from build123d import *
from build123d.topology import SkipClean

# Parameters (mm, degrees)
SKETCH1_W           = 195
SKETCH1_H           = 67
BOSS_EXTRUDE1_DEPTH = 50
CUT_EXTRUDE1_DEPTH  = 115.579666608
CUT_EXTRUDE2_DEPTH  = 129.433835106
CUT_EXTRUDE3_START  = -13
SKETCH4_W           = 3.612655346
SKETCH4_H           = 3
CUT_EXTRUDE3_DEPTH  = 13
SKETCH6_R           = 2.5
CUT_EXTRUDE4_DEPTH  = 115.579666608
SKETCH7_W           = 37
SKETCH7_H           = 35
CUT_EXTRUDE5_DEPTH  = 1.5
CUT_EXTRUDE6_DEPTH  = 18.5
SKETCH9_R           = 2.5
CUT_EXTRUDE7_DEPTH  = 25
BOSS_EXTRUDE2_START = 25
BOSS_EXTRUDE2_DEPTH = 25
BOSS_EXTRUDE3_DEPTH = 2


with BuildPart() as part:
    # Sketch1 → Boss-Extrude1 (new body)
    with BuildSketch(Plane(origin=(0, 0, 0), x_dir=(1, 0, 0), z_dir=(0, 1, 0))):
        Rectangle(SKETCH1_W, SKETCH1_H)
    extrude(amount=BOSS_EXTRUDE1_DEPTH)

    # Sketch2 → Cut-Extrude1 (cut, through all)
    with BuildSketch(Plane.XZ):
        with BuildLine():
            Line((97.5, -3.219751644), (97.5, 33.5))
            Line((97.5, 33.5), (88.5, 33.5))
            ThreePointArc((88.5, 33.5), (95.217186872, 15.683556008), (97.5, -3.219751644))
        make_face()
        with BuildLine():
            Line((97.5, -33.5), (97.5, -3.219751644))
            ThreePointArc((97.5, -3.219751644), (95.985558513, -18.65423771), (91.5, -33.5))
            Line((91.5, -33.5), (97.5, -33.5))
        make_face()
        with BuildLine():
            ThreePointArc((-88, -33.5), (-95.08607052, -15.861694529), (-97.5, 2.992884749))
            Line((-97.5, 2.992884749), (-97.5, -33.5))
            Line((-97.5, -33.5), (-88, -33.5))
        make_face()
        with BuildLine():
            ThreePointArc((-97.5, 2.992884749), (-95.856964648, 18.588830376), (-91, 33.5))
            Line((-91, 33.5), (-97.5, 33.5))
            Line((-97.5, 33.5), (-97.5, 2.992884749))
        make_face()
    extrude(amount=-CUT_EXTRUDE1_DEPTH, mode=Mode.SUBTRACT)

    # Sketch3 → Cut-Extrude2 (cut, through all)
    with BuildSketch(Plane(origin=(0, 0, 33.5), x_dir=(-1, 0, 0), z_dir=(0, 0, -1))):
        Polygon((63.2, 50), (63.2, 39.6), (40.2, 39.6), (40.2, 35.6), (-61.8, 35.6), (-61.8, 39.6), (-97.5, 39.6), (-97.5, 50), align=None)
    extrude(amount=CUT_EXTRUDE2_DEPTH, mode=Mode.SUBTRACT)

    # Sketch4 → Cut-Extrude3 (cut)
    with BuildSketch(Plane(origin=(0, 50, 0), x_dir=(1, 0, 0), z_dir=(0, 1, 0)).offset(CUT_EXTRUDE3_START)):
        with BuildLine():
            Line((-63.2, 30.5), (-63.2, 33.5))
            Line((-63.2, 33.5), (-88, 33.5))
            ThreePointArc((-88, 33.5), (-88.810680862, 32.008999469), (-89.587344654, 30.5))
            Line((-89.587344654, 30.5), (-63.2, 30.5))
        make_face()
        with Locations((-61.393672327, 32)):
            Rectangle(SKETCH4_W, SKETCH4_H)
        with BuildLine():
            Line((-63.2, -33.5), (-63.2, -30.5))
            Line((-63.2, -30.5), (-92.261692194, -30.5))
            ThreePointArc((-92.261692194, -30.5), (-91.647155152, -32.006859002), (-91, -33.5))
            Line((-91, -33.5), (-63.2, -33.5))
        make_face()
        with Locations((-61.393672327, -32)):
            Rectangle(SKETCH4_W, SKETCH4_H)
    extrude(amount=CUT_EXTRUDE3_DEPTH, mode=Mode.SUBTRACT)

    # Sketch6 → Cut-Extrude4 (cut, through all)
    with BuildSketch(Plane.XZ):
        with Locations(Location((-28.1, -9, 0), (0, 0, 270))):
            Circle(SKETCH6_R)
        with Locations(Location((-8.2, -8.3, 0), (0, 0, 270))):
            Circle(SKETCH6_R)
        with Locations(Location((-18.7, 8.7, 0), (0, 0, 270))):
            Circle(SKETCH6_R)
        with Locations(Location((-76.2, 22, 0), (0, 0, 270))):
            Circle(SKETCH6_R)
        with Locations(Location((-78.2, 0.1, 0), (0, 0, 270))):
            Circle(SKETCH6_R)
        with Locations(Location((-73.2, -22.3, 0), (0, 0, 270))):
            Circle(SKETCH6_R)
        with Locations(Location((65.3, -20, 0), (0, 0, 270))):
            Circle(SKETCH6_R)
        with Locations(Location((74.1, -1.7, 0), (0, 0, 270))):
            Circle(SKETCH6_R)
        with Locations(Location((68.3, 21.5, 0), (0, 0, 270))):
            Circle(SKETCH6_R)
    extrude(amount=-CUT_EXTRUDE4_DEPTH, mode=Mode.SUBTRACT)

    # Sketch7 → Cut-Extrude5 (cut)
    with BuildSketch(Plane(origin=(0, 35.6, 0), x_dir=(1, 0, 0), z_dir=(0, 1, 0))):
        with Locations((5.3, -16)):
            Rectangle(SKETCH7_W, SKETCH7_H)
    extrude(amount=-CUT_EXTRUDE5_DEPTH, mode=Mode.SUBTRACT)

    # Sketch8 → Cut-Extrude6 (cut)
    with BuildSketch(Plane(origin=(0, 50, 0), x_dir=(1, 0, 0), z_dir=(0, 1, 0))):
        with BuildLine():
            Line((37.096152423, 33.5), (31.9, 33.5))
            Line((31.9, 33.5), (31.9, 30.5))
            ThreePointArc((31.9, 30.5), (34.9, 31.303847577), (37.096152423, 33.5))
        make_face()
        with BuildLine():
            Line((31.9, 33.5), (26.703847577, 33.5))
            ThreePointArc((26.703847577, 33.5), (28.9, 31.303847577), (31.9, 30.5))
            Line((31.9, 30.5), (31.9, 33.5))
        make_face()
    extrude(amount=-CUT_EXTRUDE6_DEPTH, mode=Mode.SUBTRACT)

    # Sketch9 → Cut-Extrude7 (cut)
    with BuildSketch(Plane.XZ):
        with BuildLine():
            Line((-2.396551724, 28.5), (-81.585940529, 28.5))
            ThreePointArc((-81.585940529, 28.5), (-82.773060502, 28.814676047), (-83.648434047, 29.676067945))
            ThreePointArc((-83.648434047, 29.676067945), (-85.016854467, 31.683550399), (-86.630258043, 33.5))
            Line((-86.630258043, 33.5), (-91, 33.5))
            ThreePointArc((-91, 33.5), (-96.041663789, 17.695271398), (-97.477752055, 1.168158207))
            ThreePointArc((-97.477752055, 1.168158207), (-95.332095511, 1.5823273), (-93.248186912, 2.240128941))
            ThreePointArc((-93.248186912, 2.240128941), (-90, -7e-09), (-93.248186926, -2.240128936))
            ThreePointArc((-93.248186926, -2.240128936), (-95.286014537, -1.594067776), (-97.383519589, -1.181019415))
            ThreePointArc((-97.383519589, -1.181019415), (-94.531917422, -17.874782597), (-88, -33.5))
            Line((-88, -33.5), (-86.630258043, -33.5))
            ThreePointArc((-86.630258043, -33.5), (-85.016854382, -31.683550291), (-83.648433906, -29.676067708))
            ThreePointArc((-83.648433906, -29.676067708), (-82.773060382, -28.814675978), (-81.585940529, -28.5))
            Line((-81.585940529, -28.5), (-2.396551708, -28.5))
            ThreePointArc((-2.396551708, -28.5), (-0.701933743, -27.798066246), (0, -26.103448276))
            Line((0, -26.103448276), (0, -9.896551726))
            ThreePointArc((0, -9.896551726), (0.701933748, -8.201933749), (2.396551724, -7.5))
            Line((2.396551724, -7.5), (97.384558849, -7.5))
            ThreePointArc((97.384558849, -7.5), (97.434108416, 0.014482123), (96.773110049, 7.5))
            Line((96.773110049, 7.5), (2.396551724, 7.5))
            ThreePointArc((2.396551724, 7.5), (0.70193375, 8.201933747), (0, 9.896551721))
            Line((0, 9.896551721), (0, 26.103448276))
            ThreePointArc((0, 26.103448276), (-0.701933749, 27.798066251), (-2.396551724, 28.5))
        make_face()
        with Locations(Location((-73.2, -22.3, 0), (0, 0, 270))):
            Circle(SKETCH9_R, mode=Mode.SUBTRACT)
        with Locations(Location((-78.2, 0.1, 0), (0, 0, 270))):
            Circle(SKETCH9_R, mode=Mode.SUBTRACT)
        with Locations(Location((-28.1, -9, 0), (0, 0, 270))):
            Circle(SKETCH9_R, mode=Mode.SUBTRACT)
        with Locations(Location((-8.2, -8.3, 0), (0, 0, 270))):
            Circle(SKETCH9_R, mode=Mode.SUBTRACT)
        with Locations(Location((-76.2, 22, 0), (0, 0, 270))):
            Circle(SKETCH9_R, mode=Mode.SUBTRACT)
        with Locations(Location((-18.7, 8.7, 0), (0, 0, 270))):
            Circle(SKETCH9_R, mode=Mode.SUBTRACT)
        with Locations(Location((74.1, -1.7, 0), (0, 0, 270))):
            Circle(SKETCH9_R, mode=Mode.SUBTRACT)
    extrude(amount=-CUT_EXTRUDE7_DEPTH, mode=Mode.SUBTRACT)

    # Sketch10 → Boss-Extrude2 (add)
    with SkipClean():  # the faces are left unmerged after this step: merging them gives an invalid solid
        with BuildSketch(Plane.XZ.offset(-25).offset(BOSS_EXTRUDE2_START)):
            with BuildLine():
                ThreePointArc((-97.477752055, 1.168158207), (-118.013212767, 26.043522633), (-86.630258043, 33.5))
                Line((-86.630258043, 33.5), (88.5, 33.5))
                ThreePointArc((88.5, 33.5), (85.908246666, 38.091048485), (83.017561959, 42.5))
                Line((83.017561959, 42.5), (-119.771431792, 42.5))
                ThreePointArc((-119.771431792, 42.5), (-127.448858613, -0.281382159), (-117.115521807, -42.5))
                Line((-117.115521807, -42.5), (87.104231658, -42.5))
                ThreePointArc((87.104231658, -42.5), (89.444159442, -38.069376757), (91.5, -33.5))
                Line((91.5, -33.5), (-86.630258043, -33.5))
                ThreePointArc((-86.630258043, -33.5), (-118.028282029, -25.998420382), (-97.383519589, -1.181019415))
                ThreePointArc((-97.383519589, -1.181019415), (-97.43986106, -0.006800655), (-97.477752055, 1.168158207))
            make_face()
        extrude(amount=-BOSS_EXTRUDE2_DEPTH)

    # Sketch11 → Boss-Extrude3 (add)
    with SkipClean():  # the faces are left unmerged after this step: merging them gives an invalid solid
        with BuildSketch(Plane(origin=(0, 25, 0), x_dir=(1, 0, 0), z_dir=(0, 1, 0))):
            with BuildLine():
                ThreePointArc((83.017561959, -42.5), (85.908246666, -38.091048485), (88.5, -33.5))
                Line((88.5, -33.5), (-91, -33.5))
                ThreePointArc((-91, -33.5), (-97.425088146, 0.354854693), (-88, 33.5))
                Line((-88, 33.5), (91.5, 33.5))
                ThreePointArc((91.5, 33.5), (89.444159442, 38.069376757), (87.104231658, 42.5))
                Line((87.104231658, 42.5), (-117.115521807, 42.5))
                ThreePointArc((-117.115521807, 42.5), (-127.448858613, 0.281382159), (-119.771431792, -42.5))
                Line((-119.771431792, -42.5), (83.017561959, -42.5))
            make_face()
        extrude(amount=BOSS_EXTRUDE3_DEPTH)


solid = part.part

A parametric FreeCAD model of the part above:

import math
import FreeCAD as App
import Part
import Sketcher
Q = App.Units.Quantity

doc = App.newDocument("Part")
params = doc.addObject("Spreadsheet::Sheet", "Params")
for row, (alias, value) in enumerate([
    ("sketch1_width", "195 mm"),
    ("sketch1_height", "67 mm"),
    ("pad1_length", "50 mm"),
    ("sketch2_width", "9 mm"),
    ("sketch2_width2", "6 mm"),
    ("sketch2_width3", "9.5 mm"),
    ("sketch2_width4", "6.5 mm"),
    ("sketch3_width", "102 mm"),
    ("sketch3_width2", "23 mm"),
    ("sketch3_height", "4 mm"),
    ("sketch3_width3", "160.7 mm"),
    ("sketch3_height2", "10.4 mm"),
    ("sketch4_width", "30 mm"),
    ("sketch4_height", "3 mm"),
    ("pocket3_length", "13 mm"),
    ("sketch5_diameter", "5 mm"),
    ("sketch6_width", "37 mm"),
    ("sketch6_height", "35 mm"),
    ("pocket5_length", "1.5 mm"),
    ("sketch7_radius", "6 mm"),
    ("pocket6_length", "18.5 mm"),
    ("sketch8_diameter", "5 mm"),
    ("sketch8_radius", "19 mm"),
    ("pocket7_length", "25 mm"),
    ("sketch9_radius", "19 mm"),
    ("pad2_length", "25 mm"),
    ("sketch10_width", "179.5 mm"),
    ("pad3_length", "2 mm"),
], start=1):
    params.set(f"A{row}", alias)
    params.set(f"B{row}", "=" + value)
    params.setAlias(f"B{row}", alias)

body = doc.addObject("PartDesign::Body", "Body")

sketch1 = body.newObject("Sketcher::SketchObject", "Sketch")
sketch1.AttachmentSupport = (doc.getObject("XZ_Plane"), [""])
sketch1.MapMode = "FlatFace"
sketch1.addGeometry(Part.LineSegment(App.Vector(-98, -34, 0), App.Vector(-98, 34, 0)), False)
sketch1.addGeometry(Part.LineSegment(App.Vector(-98, 34, 0), App.Vector(98, 34, 0)), False)
sketch1.addGeometry(Part.LineSegment(App.Vector(98, 34, 0), App.Vector(98, -34, 0)), False)
sketch1.addGeometry(Part.LineSegment(App.Vector(98, -34, 0), App.Vector(-98, -34, 0)), False)
sketch1.addConstraint(Sketcher.Constraint("Coincident", 0, 2, 1, 1))
sketch1.addConstraint(Sketcher.Constraint("Coincident", 1, 2, 2, 1))
sketch1.addConstraint(Sketcher.Constraint("Coincident", 2, 2, 3, 1))
sketch1.addConstraint(Sketcher.Constraint("Coincident", 3, 2, 0, 1))
sketch1.addConstraint(Sketcher.Constraint("Vertical", 0))
sketch1.addConstraint(Sketcher.Constraint("Horizontal", 1))
sketch1.addConstraint(Sketcher.Constraint("Vertical", 2))
sketch1.addConstraint(Sketcher.Constraint("Horizontal", 3))
sketch1.addConstraint(Sketcher.Constraint("Symmetric", 0, 2, 2, 2, -1, 1))
sketch1.addConstraint(Sketcher.Constraint("DistanceX", 1, 1, 1, 2, Q("195 mm")))
sketch1.addConstraint(Sketcher.Constraint("DistanceY", 0, 1, 0, 2, Q("67 mm")))
sketch1.setExpression("Constraints[9]", "Params.sketch1_width")
sketch1.setExpression("Constraints[10]", "Params.sketch1_height")
pad1 = body.newObject("PartDesign::Pad", "Pad")
pad1.Profile = sketch1
pad1.setExpression("Length", "Params.pad1_length")
pad1.Reversed = True

sketch2 = body.newObject("Sketcher::SketchObject", "Sketch001")
sketch2.AttachmentSupport = (doc.getObject("XZ_Plane"), [""])
sketch2.MapMode = "FlatFace"
sketch2.addGeometry(Part.LineSegment(App.Vector(98, -3, 0), App.Vector(98, 34, 0)), False)
sketch2.addGeometry(Part.LineSegment(App.Vector(98, 34, 0), App.Vector(88, 34, 0)), False)
sketch2.addGeometry(Part.ArcOfCircle(Part.Circle(App.Vector(18, -3, 0), App.Vector(0, 0, 1), 79), math.radians(0), math.radians(28)), False)
sketch2.addGeometry(Part.LineSegment(App.Vector(98, -34, 0), App.Vector(98, -3, 0)), False)
sketch2.addGeometry(Part.ArcOfCircle(Part.Circle(App.Vector(18, -3, 0), App.Vector(0, 0, 1), 79), math.radians(-22), math.radians(0)), False)
sketch2.addGeometry(Part.LineSegment(App.Vector(92, -34, 0), App.Vector(98, -34, 0)), False)
sketch2.addGeometry(Part.ArcOfCircle(Part.Circle(App.Vector(-23, 3, 0), App.Vector(0, 0, 1), 75), math.radians(180), math.radians(209)), False)
sketch2.addGeometry(Part.LineSegment(App.Vector(-98, 3, 0), App.Vector(-98, -34, 0)), False)
sketch2.addGeometry(Part.LineSegment(App.Vector(-98, -34, 0), App.Vector(-88, -34, 0)), False)
sketch2.addGeometry(Part.ArcOfCircle(Part.Circle(App.Vector(-23, 3, 0), App.Vector(0, 0, 1), 75), math.radians(156), math.radians(180)), False)
sketch2.addGeometry(Part.LineSegment(App.Vector(-91, 34, 0), App.Vector(-98, 34, 0)), False)
sketch2.addGeometry(Part.LineSegment(App.Vector(-98, 34, 0), App.Vector(-98, 3, 0)), False)
sketch2.addConstraint(Sketcher.Constraint("Coincident", 0, 2, 1, 1))
sketch2.addConstraint(Sketcher.Constraint("Coincident", 1, 2, 2, 2))
sketch2.addConstraint(Sketcher.Constraint("Tangent", 2, 1, 0, 1))
sketch2.addConstraint(Sketcher.Constraint("Tangent", 3, 2, 4, 2))
sketch2.addConstraint(Sketcher.Constraint("Coincident", 4, 1, 5, 1))
sketch2.addConstraint(Sketcher.Constraint("Coincident", 5, 2, 3, 1))
sketch2.addConstraint(Sketcher.Constraint("Tangent", 6, 1, 7, 1))
sketch2.addConstraint(Sketcher.Constraint("Coincident", 7, 2, 8, 1))
sketch2.addConstraint(Sketcher.Constraint("Coincident", 8, 2, 6, 2))
sketch2.addConstraint(Sketcher.Constraint("Coincident", 9, 1, 10, 1))
sketch2.addConstraint(Sketcher.Constraint("Coincident", 10, 2, 11, 1))
sketch2.addConstraint(Sketcher.Constraint("Tangent", 11, 2, 9, 2))
sketch2.addConstraint(Sketcher.Constraint("Vertical", 0))
sketch2.addConstraint(Sketcher.Constraint("Horizontal", 1))
sketch2.addConstraint(Sketcher.Constraint("Vertical", 3))
sketch2.addConstraint(Sketcher.Constraint("Horizontal", 5))
sketch2.addConstraint(Sketcher.Constraint("Vertical", 7))
sketch2.addConstraint(Sketcher.Constraint("Horizontal", 8))
sketch2.addConstraint(Sketcher.Constraint("Horizontal", 10))
sketch2.addConstraint(Sketcher.Constraint("Vertical", 11))
sketch2.addConstraint(Sketcher.Constraint("Coincident", 4, 3, 2, 3))
sketch2.addConstraint(Sketcher.Constraint("Coincident", 9, 3, 6, 3))
sketch2.addConstraint(Sketcher.Constraint("Equal", 2, 4))
sketch2.addConstraint(Sketcher.Constraint("Equal", 6, 9))
sketch2.addConstraint(Sketcher.Constraint("Symmetric", 0, 2, 7, 2, -1, 1))
sketch2.addConstraint(Sketcher.Constraint("Horizontal", 5, 2, 7, 2))
sketch2.addConstraint(Sketcher.Constraint("Horizontal", 1, 2, 9, 1))
sketch2.addConstraint(Sketcher.Constraint("DistanceX", 1, 2, 1, 1, Q("9 mm")))
sketch2.addConstraint(Sketcher.Constraint("DistanceX", 5, 1, 5, 2, Q("6 mm")))
sketch2.addConstraint(Sketcher.Constraint("DistanceX", 8, 1, 8, 2, Q("9.5 mm")))
sketch2.addConstraint(Sketcher.Constraint("DistanceX", 10, 2, 10, 1, Q("6.5 mm")))
sketch2.addConstraint(Sketcher.Constraint("DistanceX", 8, 2, -1, 1, Q("88 mm")))
sketch2.addConstraint(Sketcher.Constraint("DistanceY", 4, 1, 1, 2, Q("67 mm")))
sketch2.setExpression("Constraints[27]", "Params.sketch2_width")
sketch2.setExpression("Constraints[28]", "Params.sketch2_width2")
sketch2.setExpression("Constraints[29]", "Params.sketch2_width3")
sketch2.setExpression("Constraints[30]", "Params.sketch2_width4")
pocket1 = body.newObject("PartDesign::Pocket", "Pocket")
pocket1.Profile = sketch2
pocket1.Type = "ThroughAll"

sketch3 = body.newObject("Sketcher::SketchObject", "Sketch002")
sketch3.AttachmentSupport = (doc.getObject("XY_Plane"), [""])
sketch3.MapMode = "FlatFace"
sketch3.AttachmentOffset = App.Placement(App.Vector(0, 0, 33.5), App.Rotation())
sketch3.addGeometry(Part.LineSegment(App.Vector(-63.2, 39.6, 0), App.Vector(-63.2, 50, 0)), False)
sketch3.addGeometry(Part.LineSegment(App.Vector(-63.2, 50, 0), App.Vector(97.5, 50, 0)), False)
sketch3.addGeometry(Part.LineSegment(App.Vector(97.5, 50, 0), App.Vector(97.5, 39.6, 0)), False)
sketch3.addGeometry(Part.LineSegment(App.Vector(97.5, 39.6, 0), App.Vector(61.8, 39.6, 0)), False)
sketch3.addGeometry(Part.LineSegment(App.Vector(61.8, 39.6, 0), App.Vector(61.8, 35.6, 0)), False)
sketch3.addGeometry(Part.LineSegment(App.Vector(61.8, 35.6, 0), App.Vector(-40.2, 35.6, 0)), False)
sketch3.addGeometry(Part.LineSegment(App.Vector(-40.2, 35.6, 0), App.Vector(-40.2, 39.6, 0)), False)
sketch3.addGeometry(Part.LineSegment(App.Vector(-40.2, 39.6, 0), App.Vector(-63.2, 39.6, 0)), False)
sketch3.addConstraint(Sketcher.Constraint("Coincident", 0, 2, 1, 1))
sketch3.addConstraint(Sketcher.Constraint("Coincident", 1, 2, 2, 1))
sketch3.addConstraint(Sketcher.Constraint("Coincident", 2, 2, 3, 1))
sketch3.addConstraint(Sketcher.Constraint("Coincident", 3, 2, 4, 1))
sketch3.addConstraint(Sketcher.Constraint("Coincident", 4, 2, 5, 1))
sketch3.addConstraint(Sketcher.Constraint("Coincident", 5, 2, 6, 1))
sketch3.addConstraint(Sketcher.Constraint("Coincident", 6, 2, 7, 1))
sketch3.addConstraint(Sketcher.Constraint("Coincident", 7, 2, 0, 1))
sketch3.addConstraint(Sketcher.Constraint("Vertical", 0))
sketch3.addConstraint(Sketcher.Constraint("Horizontal", 1))
sketch3.addConstraint(Sketcher.Constraint("Vertical", 2))
sketch3.addConstraint(Sketcher.Constraint("Horizontal", 3))
sketch3.addConstraint(Sketcher.Constraint("Vertical", 4))
sketch3.addConstraint(Sketcher.Constraint("Horizontal", 5))
sketch3.addConstraint(Sketcher.Constraint("Vertical", 6))
sketch3.addConstraint(Sketcher.Constraint("Horizontal", 7))
sketch3.addConstraint(Sketcher.Constraint("Horizontal", 3, 2, 6, 2))
sketch3.addConstraint(Sketcher.Constraint("DistanceX", 5, 2, 5, 1, Q("102 mm")))
sketch3.addConstraint(Sketcher.Constraint("DistanceX", 7, 2, 7, 1, Q("23 mm")))
sketch3.addConstraint(Sketcher.Constraint("DistanceY", 4, 2, 4, 1, Q("4 mm")))
sketch3.addConstraint(Sketcher.Constraint("DistanceX", 1, 1, 1, 2, Q("160.7 mm")))
sketch3.addConstraint(Sketcher.Constraint("DistanceY", 0, 1, 0, 2, Q("10.4 mm")))
sketch3.addConstraint(Sketcher.Constraint("DistanceY", -1, 1, 0, 2, Q("50 mm")))
sketch3.addConstraint(Sketcher.Constraint("DistanceX", 0, 2, -1, 1, Q("63.2 mm")))
sketch3.setExpression("Constraints[17]", "Params.sketch3_width")
sketch3.setExpression("Constraints[18]", "Params.sketch3_width2")
sketch3.setExpression("Constraints[19]", "Params.sketch3_height")
sketch3.setExpression("Constraints[20]", "Params.sketch3_width3")
sketch3.setExpression("Constraints[21]", "Params.sketch3_height2")
pocket2 = body.newObject("PartDesign::Pocket", "Pocket001")
pocket2.Profile = sketch3
pocket2.Type = "ThroughAll"

sketch4 = body.newObject("Sketcher::SketchObject", "Sketch003")
sketch4.AttachmentSupport = (doc.getObject("XZ_Plane"), [""])
sketch4.MapMode = "FlatFace"
sketch4.AttachmentOffset = App.Placement(App.Vector(0, 0, -37), App.Rotation())
sketch4.addGeometry(Part.ArcOfCircle(Part.Circle(App.Vector(-22.7, 3, 0), App.Vector(0, 0, 1), 74.8), math.radians(-153.42), math.radians(-150.82)), False)
sketch4.addGeometry(Part.LineSegment(App.Vector(-89.6, -30.5, 0), App.Vector(-59.6, -30.5, 0)), False)
sketch4.addGeometry(Part.LineSegment(App.Vector(-59.6, -30.5, 0), App.Vector(-59.6, -33.5, 0)), False)
sketch4.addGeometry(Part.LineSegment(App.Vector(-59.6, -33.5, 0), App.Vector(-88, -33.5, 0)), False)
sketch4.addGeometry(Part.ArcOfCircle(Part.Circle(App.Vector(-22.7, 3, 0), App.Vector(0, 0, 1), 74.8), math.radians(155.94), math.radians(158.44)), False)
sketch4.addGeometry(Part.LineSegment(App.Vector(-91, 33.5, 0), App.Vector(-59.6, 33.5, 0)), False)
sketch4.addGeometry(Part.LineSegment(App.Vector(-59.6, 33.5, 0), App.Vector(-59.6, 30.5, 0)), False)
sketch4.addGeometry(Part.LineSegment(App.Vector(-59.6, 30.5, 0), App.Vector(-92.3, 30.5, 0)), False)
sketch4.addConstraint(Sketcher.Constraint("Coincident", 0, 1, 1, 1))
sketch4.addConstraint(Sketcher.Constraint("Coincident", 1, 2, 2, 1))
sketch4.addConstraint(Sketcher.Constraint("Coincident", 2, 2, 3, 1))
sketch4.addConstraint(Sketcher.Constraint("Coincident", 3, 2, 0, 2))
sketch4.addConstraint(Sketcher.Constraint("Coincident", 4, 1, 5, 1))
sketch4.addConstraint(Sketcher.Constraint("Coincident", 5, 2, 6, 1))
sketch4.addConstraint(Sketcher.Constraint("Coincident", 6, 2, 7, 1))
sketch4.addConstraint(Sketcher.Constraint("Coincident", 7, 2, 4, 2))
sketch4.addConstraint(Sketcher.Constraint("Horizontal", 1))
sketch4.addConstraint(Sketcher.Constraint("Vertical", 2))
sketch4.addConstraint(Sketcher.Constraint("Horizontal", 3))
sketch4.addConstraint(Sketcher.Constraint("Horizontal", 5))
sketch4.addConstraint(Sketcher.Constraint("Vertical", 6))
sketch4.addConstraint(Sketcher.Constraint("Horizontal", 7))
sketch4.addConstraint(Sketcher.Constraint("Coincident", 4, 3, 0, 3))
sketch4.addConstraint(Sketcher.Constraint("Equal", 0, 4))
sketch4.addConstraint(Sketcher.Constraint("Symmetric", 2, 2, 5, 2, -1))
sketch4.addConstraint(Sketcher.Constraint("Equal", 2, 6))
sketch4.addConstraint(Sketcher.Constraint("DistanceX", 1, 1, 1, 2, Q("30 mm")))
sketch4.addConstraint(Sketcher.Constraint("DistanceY", 2, 2, 2, 1, Q("3 mm")))
sketch4.addConstraint(Sketcher.Constraint("DistanceX", 3, 2, -1, 1, Q("88 mm")))
sketch4.addConstraint(Sketcher.Constraint("DistanceX", 4, 1, -1, 1, Q("91 mm")))
sketch4.addConstraint(Sketcher.Constraint("DistanceY", 0, 1, 4, 1, Q("64 mm")))
sketch4.addConstraint(Sketcher.Constraint("Radius", 0, Q("74.841086 mm")))
sketch4.setExpression("Constraints[18]", "Params.sketch4_width")
sketch4.setExpression("Constraints[19]", "Params.sketch4_height")
pocket3 = body.newObject("PartDesign::Pocket", "Pocket002")
pocket3.Profile = sketch4
pocket3.setExpression("Length", "Params.pocket3_length")

sketch5 = body.newObject("Sketcher::SketchObject", "Sketch004")
sketch5.AttachmentSupport = (doc.getObject("XZ_Plane"), [""])
sketch5.MapMode = "FlatFace"
sketch5.addGeometry(Part.Circle(App.Vector(-28.1, -9, 0), App.Vector(0, 0, 1), 2.5), False)
sketch5.addGeometry(Part.Circle(App.Vector(-8.2, -8.3, 0), App.Vector(0, 0, 1), 2.5), False)
sketch5.addGeometry(Part.Circle(App.Vector(-18.7, 8.7, 0), App.Vector(0, 0, 1), 2.5), False)
sketch5.addGeometry(Part.Circle(App.Vector(-76.2, 22, 0), App.Vector(0, 0, 1), 2.5), False)
sketch5.addGeometry(Part.Circle(App.Vector(-78.2, 0.1, 0), App.Vector(0, 0, 1), 2.5), False)
sketch5.addGeometry(Part.Circle(App.Vector(-73.2, -22.3, 0), App.Vector(0, 0, 1), 2.5), False)
sketch5.addGeometry(Part.Circle(App.Vector(65.3, -20, 0), App.Vector(0, 0, 1), 2.5), False)
sketch5.addGeometry(Part.Circle(App.Vector(74.1, -1.7, 0), App.Vector(0, 0, 1), 2.5), False)
sketch5.addGeometry(Part.Circle(App.Vector(68.3, 21.5, 0), App.Vector(0, 0, 1), 2.5), False)
sketch5.addConstraint(Sketcher.Constraint("Equal", 0, 1))
sketch5.addConstraint(Sketcher.Constraint("Equal", 1, 2))
sketch5.addConstraint(Sketcher.Constraint("Equal", 2, 3))
sketch5.addConstraint(Sketcher.Constraint("Equal", 3, 4))
sketch5.addConstraint(Sketcher.Constraint("Equal", 4, 5))
sketch5.addConstraint(Sketcher.Constraint("Equal", 5, 6))
sketch5.addConstraint(Sketcher.Constraint("Equal", 6, 7))
sketch5.addConstraint(Sketcher.Constraint("Equal", 7, 8))
sketch5.addConstraint(Sketcher.Constraint("Diameter", 0, Q("5 mm")))
sketch5.addConstraint(Sketcher.Constraint("DistanceY", 0, 3, -1, 1, Q("9 mm")))
sketch5.addConstraint(Sketcher.Constraint("DistanceY", -1, 1, 3, 3, Q("22 mm")))
sketch5.addConstraint(Sketcher.Constraint("DistanceY", 6, 3, -1, 1, Q("20 mm")))
sketch5.addConstraint(Sketcher.Constraint("DistanceY", 1, 3, 2, 3, Q("17 mm")))
sketch5.addConstraint(Sketcher.Constraint("DistanceX", 3, 3, 1, 3, Q("68 mm")))
sketch5.addConstraint(Sketcher.Constraint("DistanceX", 4, 3, 3, 3, Q("2 mm")))
sketch5.addConstraint(Sketcher.Constraint("DistanceX", 4, 3, 5, 3, Q("5 mm")))
sketch5.addConstraint(Sketcher.Constraint("DistanceY", 5, 3, 2, 3, Q("31 mm")))
sketch5.addConstraint(Sketcher.Constraint("DistanceX", 2, 3, 6, 3, Q("84 mm")))
sketch5.addConstraint(Sketcher.Constraint("DistanceX", 6, 3, 8, 3, Q("3 mm")))
sketch5.addConstraint(Sketcher.Constraint("DistanceX", 0, 3, -1, 1, Q("28.1 mm")))
sketch5.addConstraint(Sketcher.Constraint("DistanceX", 1, 3, -1, 1, Q("8.2 mm")))
sketch5.addConstraint(Sketcher.Constraint("DistanceY", 1, 3, -1, 1, Q("8.3 mm")))
sketch5.addConstraint(Sketcher.Constraint("DistanceX", 2, 3, -1, 1, Q("18.7 mm")))
sketch5.addConstraint(Sketcher.Constraint("DistanceY", -1, 1, 4, 3, Q("0.1 mm")))
sketch5.addConstraint(Sketcher.Constraint("DistanceX", -1, 1, 7, 3, Q("74.1 mm")))
sketch5.addConstraint(Sketcher.Constraint("DistanceY", 7, 3, -1, 1, Q("1.7 mm")))
sketch5.addConstraint(Sketcher.Constraint("DistanceY", -1, 1, 8, 3, Q("21.5 mm")))
sketch5.setExpression("Constraints[8]", "Params.sketch5_diameter")
pocket4 = body.newObject("PartDesign::Pocket", "Pocket003")
pocket4.Profile = sketch5
pocket4.Type = "ThroughAll"

sketch6 = body.newObject("Sketcher::SketchObject", "Sketch005")
sketch6.AttachmentSupport = (doc.getObject("XZ_Plane"), [""])
sketch6.MapMode = "FlatFace"
sketch6.AttachmentOffset = App.Placement(App.Vector(0, 0, -35.6), App.Rotation())
sketch6.addGeometry(Part.LineSegment(App.Vector(-13, -2, 0), App.Vector(-13, 34, 0)), False)
sketch6.addGeometry(Part.LineSegment(App.Vector(-13, 34, 0), App.Vector(24, 34, 0)), False)
sketch6.addGeometry(Part.LineSegment(App.Vector(24, 34, 0), App.Vector(24, -2, 0)), False)
sketch6.addGeometry(Part.LineSegment(App.Vector(24, -2, 0), App.Vector(-13, -2, 0)), False)
sketch6.addConstraint(Sketcher.Constraint("Coincident", 0, 2, 1, 1))
sketch6.addConstraint(Sketcher.Constraint("Coincident", 1, 2, 2, 1))
sketch6.addConstraint(Sketcher.Constraint("Coincident", 2, 2, 3, 1))
sketch6.addConstraint(Sketcher.Constraint("Coincident", 3, 2, 0, 1))
sketch6.addConstraint(Sketcher.Constraint("Vertical", 0))
sketch6.addConstraint(Sketcher.Constraint("Horizontal", 1))
sketch6.addConstraint(Sketcher.Constraint("Vertical", 2))
sketch6.addConstraint(Sketcher.Constraint("Horizontal", 3))
sketch6.addConstraint(Sketcher.Constraint("DistanceX", 1, 1, 1, 2, Q("37 mm")))
sketch6.addConstraint(Sketcher.Constraint("DistanceY", 0, 1, 0, 2, Q("35 mm")))
sketch6.addConstraint(Sketcher.Constraint("DistanceX", 0, 2, -1, 1, Q("13.2 mm")))
sketch6.addConstraint(Sketcher.Constraint("DistanceY", -1, 1, 0, 2, Q("33.5 mm")))
sketch6.setExpression("Constraints[8]", "Params.sketch6_width")
sketch6.setExpression("Constraints[9]", "Params.sketch6_height")
pocket5 = body.newObject("PartDesign::Pocket", "Pocket004")
pocket5.Profile = sketch6
pocket5.setExpression("Length", "Params.pocket5_length")
pocket5.Reversed = True

sketch7 = body.newObject("Sketcher::SketchObject", "Sketch006")
sketch7.AttachmentSupport = (doc.getObject("XZ_Plane"), [""])
sketch7.MapMode = "FlatFace"
sketch7.AttachmentOffset = App.Placement(App.Vector(0, 0, -50), App.Rotation())
sketch7.addGeometry(Part.LineSegment(App.Vector(37, -34, 0), App.Vector(27, -34, 0)), False)
sketch7.addGeometry(Part.ArcOfCircle(Part.Circle(App.Vector(32, -36, 0), App.Vector(0, 0, 1), 6), math.radians(90), math.radians(150)), False)
sketch7.addGeometry(Part.ArcOfCircle(Part.Circle(App.Vector(32, -36, 0), App.Vector(0, 0, 1), 6), math.radians(30), math.radians(90)), False)
sketch7.addConstraint(Sketcher.Constraint("Coincident", 0, 2, 1, 2))
sketch7.addConstraint(Sketcher.Constraint("Tangent", 1, 1, 2, 2))
sketch7.addConstraint(Sketcher.Constraint("Coincident", 2, 1, 0, 1))
sketch7.addConstraint(Sketcher.Constraint("Horizontal", 0))
sketch7.addConstraint(Sketcher.Constraint("Equal", 1, 2))
sketch7.addConstraint(Sketcher.Constraint("Vertical", 2, 3, 1, 1))
sketch7.addConstraint(Sketcher.Constraint("Radius", 1, Q("6 mm")))
sketch7.addConstraint(Sketcher.Constraint("DistanceY", 1, 3, 0, 2, Q("3 mm")))
sketch7.addConstraint(Sketcher.Constraint("DistanceX", -1, 1, 1, 3, Q("31.9 mm")))
sketch7.addConstraint(Sketcher.Constraint("DistanceY", 1, 3, -1, 1, Q("36.5 mm")))
sketch7.setExpression("Constraints[6]", "Params.sketch7_radius")
pocket6 = body.newObject("PartDesign::Pocket", "Pocket005")
pocket6.Profile = sketch7
pocket6.setExpression("Length", "Params.pocket6_length")
pocket6.Reversed = True

sketch8 = body.newObject("Sketcher::SketchObject", "Sketch007")
sketch8.AttachmentSupport = (doc.getObject("XZ_Plane"), [""])
sketch8.MapMode = "FlatFace"
sketch8.addGeometry(Part.LineSegment(App.Vector(-2.4, 28.5, 0), App.Vector(-81.6, 28.5, 0)), False)
sketch8.addGeometry(Part.ArcOfCircle(Part.Circle(App.Vector(-81.6, 30.9, 0), App.Vector(0, 0, 1), 2.4), math.radians(-149), math.radians(-90)), False)
sketch8.addGeometry(Part.ArcOfCircle(Part.Circle(App.Vector(-100, 20, 0), App.Vector(0, 0, 1), 19), math.radians(30.61), math.radians(45.28)), False)
sketch8.addGeometry(Part.LineSegment(App.Vector(-86.6, 33.5, 0), App.Vector(-91, 33.5, 0)), False)
sketch8.addGeometry(Part.ArcOfCircle(Part.Circle(App.Vector(-22.7, 3, 0), App.Vector(0, 0, 1), 74.8), math.radians(156), math.radians(181)), False)
sketch8.addGeometry(Part.ArcOfCircle(Part.Circle(App.Vector(-100, 20, 0), App.Vector(0, 0, 1), 19), math.radians(-82.37), math.radians(-69.18)), False)
sketch8.addGeometry(Part.ArcOfCircle(Part.Circle(App.Vector(-92.4, 0, 0), App.Vector(0, 0, 1), 2.4), math.radians(-111), math.radians(111)), False)
sketch8.addGeometry(Part.ArcOfCircle(Part.Circle(App.Vector(-100, -20, 0), App.Vector(0, 0, 1), 19), math.radians(69.18), math.radians(82.08)), False)
sketch8.addGeometry(Part.ArcOfCircle(Part.Circle(App.Vector(-22.7, 3, 0), App.Vector(0, 0, 1), 74.8), math.radians(-177), math.radians(-151)), False)
sketch8.addGeometry(Part.LineSegment(App.Vector(-88, -33.5, 0), App.Vector(-86.6, -33.5, 0)), False)
sketch8.addGeometry(Part.ArcOfCircle(Part.Circle(App.Vector(-100, -20, 0), App.Vector(0, 0, 1), 19), math.radians(-45.28), math.radians(-30.61)), False)
sketch8.addGeometry(Part.ArcOfCircle(Part.Circle(App.Vector(-81.6, -30.9, 0), App.Vector(0, 0, 1), 2.4), math.radians(90), math.radians(149)), False)
sketch8.addGeometry(Part.LineSegment(App.Vector(-81.6, -28.5, 0), App.Vector(-2.4, -28.5, 0)), False)
sketch8.addGeometry(Part.ArcOfCircle(Part.Circle(App.Vector(-2.4, -26.1, 0), App.Vector(0, 0, 1), 2.4), math.radians(-90), math.radians(0)), False)
sketch8.addGeometry(Part.LineSegment(App.Vector(0, -26.1, 0), App.Vector(0, -9.9, 0)), False)
sketch8.addGeometry(Part.ArcOfCircle(Part.Circle(App.Vector(2.4, -9.9, 0), App.Vector(0, 0, 1), 2.4), math.radians(90), math.radians(180)), False)
sketch8.addGeometry(Part.LineSegment(App.Vector(2.4, -7.5, 0), App.Vector(97.4, -7.5, 0)), False)
sketch8.addGeometry(Part.ArcOfCircle(Part.Circle(App.Vector(18.1, -3.2, 0), App.Vector(0, 0, 1), 79.4), math.radians(-3.09), math.radians(7.76)), False)
sketch8.addGeometry(Part.LineSegment(App.Vector(96.8, 7.5, 0), App.Vector(2.4, 7.5, 0)), False)
sketch8.addGeometry(Part.ArcOfCircle(Part.Circle(App.Vector(2.4, 9.9, 0), App.Vector(0, 0, 1), 2.4), math.radians(-180), math.radians(-90)), False)
sketch8.addGeometry(Part.LineSegment(App.Vector(0, 9.9, 0), App.Vector(0, 26.1, 0)), False)
sketch8.addGeometry(Part.ArcOfCircle(Part.Circle(App.Vector(-2.4, 26.1, 0), App.Vector(0, 0, 1), 2.4), math.radians(0), math.radians(90)), False)
sketch8.addGeometry(Part.Circle(App.Vector(-73.2, -22.3, 0), App.Vector(0, 0, 1), 2.5), False)
sketch8.addGeometry(Part.Circle(App.Vector(-28.1, -9, 0), App.Vector(0, 0, 1), 2.5), False)
sketch8.addGeometry(Part.Circle(App.Vector(-8.2, -8.3, 0), App.Vector(0, 0, 1), 2.5), False)
sketch8.addGeometry(Part.Circle(App.Vector(74.1, -1.7, 0), App.Vector(0, 0, 1), 2.5), False)
sketch8.addGeometry(Part.Circle(App.Vector(-78.2, 0.1, 0), App.Vector(0, 0, 1), 2.5), False)
sketch8.addGeometry(Part.Circle(App.Vector(-18.7, 8.7, 0), App.Vector(0, 0, 1), 2.5), False)
sketch8.addGeometry(Part.Circle(App.Vector(-76.2, 22, 0), App.Vector(0, 0, 1), 2.5), False)
sketch8.addConstraint(Sketcher.Constraint("Tangent", 0, 2, 1, 2))
sketch8.addConstraint(Sketcher.Constraint("Tangent", 1, 1, 2, 1))
sketch8.addConstraint(Sketcher.Constraint("Coincident", 2, 2, 3, 1))
sketch8.addConstraint(Sketcher.Constraint("Coincident", 3, 2, 4, 1))
sketch8.addConstraint(Sketcher.Constraint("Coincident", 4, 2, 5, 1))
sketch8.addConstraint(Sketcher.Constraint("Tangent", 5, 2, 6, 2))
sketch8.addConstraint(Sketcher.Constraint("Tangent", 6, 1, 7, 1))
sketch8.addConstraint(Sketcher.Constraint("Coincident", 7, 2, 8, 1))
sketch8.addConstraint(Sketcher.Constraint("Coincident", 8, 2, 9, 1))
sketch8.addConstraint(Sketcher.Constraint("Coincident", 9, 2, 10, 1))
sketch8.addConstraint(Sketcher.Constraint("Tangent", 10, 2, 11, 2))
sketch8.addConstraint(Sketcher.Constraint("Tangent", 11, 1, 12, 1))
sketch8.addConstraint(Sketcher.Constraint("Tangent", 12, 2, 13, 1))
sketch8.addConstraint(Sketcher.Constraint("Tangent", 13, 2, 14, 1))
sketch8.addConstraint(Sketcher.Constraint("Tangent", 14, 2, 15, 2))
sketch8.addConstraint(Sketcher.Constraint("Tangent", 15, 1, 16, 1))
sketch8.addConstraint(Sketcher.Constraint("Coincident", 16, 2, 17, 1))
sketch8.addConstraint(Sketcher.Constraint("Coincident", 17, 2, 18, 1))
sketch8.addConstraint(Sketcher.Constraint("Tangent", 18, 2, 19, 2))
sketch8.addConstraint(Sketcher.Constraint("Tangent", 19, 1, 20, 1))
sketch8.addConstraint(Sketcher.Constraint("Tangent", 20, 2, 21, 1))
sketch8.addConstraint(Sketcher.Constraint("Tangent", 21, 2, 0, 1))
sketch8.addConstraint(Sketcher.Constraint("Horizontal", 0))
sketch8.addConstraint(Sketcher.Constraint("Horizontal", 3))
sketch8.addConstraint(Sketcher.Constraint("Horizontal", 9))
sketch8.addConstraint(Sketcher.Constraint("Horizontal", 12))
sketch8.addConstraint(Sketcher.Constraint("Vertical", 14))
sketch8.addConstraint(Sketcher.Constraint("Horizontal", 16))
sketch8.addConstraint(Sketcher.Constraint("Horizontal", 18))
sketch8.addConstraint(Sketcher.Constraint("Vertical", 20))
sketch8.addConstraint(Sketcher.Constraint("Coincident", 5, 3, 2, 3))
sketch8.addConstraint(Sketcher.Constraint("Coincident", 8, 3, 4, 3))
sketch8.addConstraint(Sketcher.Constraint("Coincident", 10, 3, 7, 3))
sketch8.addConstraint(Sketcher.Constraint("Equal", 2, 5))
sketch8.addConstraint(Sketcher.Constraint("Equal", 1, 6))
sketch8.addConstraint(Sketcher.Constraint("Equal", 5, 7))
sketch8.addConstraint(Sketcher.Constraint("Equal", 4, 8))
sketch8.addConstraint(Sketcher.Constraint("Equal", 7, 10))
sketch8.addConstraint(Sketcher.Constraint("Equal", 6, 11))
sketch8.addConstraint(Sketcher.Constraint("Equal", 11, 13))
sketch8.addConstraint(Sketcher.Constraint("Equal", 13, 15))
sketch8.addConstraint(Sketcher.Constraint("Equal", 15, 19))
sketch8.addConstraint(Sketcher.Constraint("Equal", 19, 21))
sketch8.addConstraint(Sketcher.Constraint("Equal", 22, 23))
sketch8.addConstraint(Sketcher.Constraint("Equal", 23, 24))
sketch8.addConstraint(Sketcher.Constraint("Equal", 24, 25))
sketch8.addConstraint(Sketcher.Constraint("Equal", 25, 26))
sketch8.addConstraint(Sketcher.Constraint("Equal", 26, 27))
sketch8.addConstraint(Sketcher.Constraint("Equal", 27, 28))
sketch8.addConstraint(Sketcher.Constraint("Symmetric", 14, 2, 19, 1, -1, 1))
sketch8.addConstraint(Sketcher.Constraint("Symmetric", 2, 3, 7, 3, -1))
sketch8.addConstraint(Sketcher.Constraint("Symmetric", 13, 3, 21, 3, -1))
sketch8.addConstraint(Sketcher.Constraint("Vertical", 2, 2, 9, 2))
sketch8.addConstraint(Sketcher.Constraint("Diameter", 22, Q("5 mm")))
sketch8.addConstraint(Sketcher.Constraint("Radius", 2, Q("19 mm")))
sketch8.addConstraint(Sketcher.Constraint("DistanceX", 2, 3, -1, 1, Q("100 mm")))
sketch8.addConstraint(Sketcher.Constraint("DistanceY", -1, 1, 2, 3, Q("20 mm")))
sketch8.addConstraint(Sketcher.Constraint("DistanceY", 23, 3, -1, 1, Q("9 mm")))
sketch8.addConstraint(Sketcher.Constraint("DistanceY", -1, 1, 28, 3, Q("22 mm")))
sketch8.addConstraint(Sketcher.Constraint("DistanceX", 3, 2, -1, 1, Q("91 mm")))
sketch8.addConstraint(Sketcher.Constraint("DistanceX", 8, 2, -1, 1, Q("88 mm")))
sketch8.addConstraint(Sketcher.Constraint("DistanceX", 6, 3, 13, 3, Q("90 mm")))
sketch8.addConstraint(Sketcher.Constraint("DistanceY", 13, 3, 1, 3, Q("57 mm")))
sketch8.addConstraint(Sketcher.Constraint("DistanceY", 11, 3, 15, 3, Q("21 mm")))
sketch8.addConstraint(Sketcher.Constraint("DistanceX", 26, 3, 22, 3, Q("5 mm")))
sketch8.addConstraint(Sketcher.Constraint("DistanceY", 24, 3, 27, 3, Q("17 mm")))
sketch8.addConstraint(Sketcher.Constraint("DistanceX", 26, 3, 28, 3, Q("2 mm")))
sketch8.addConstraint(Sketcher.Constraint("DistanceY", 0, 2, 2, 2, Q("5 mm")))
sketch8.addConstraint(Sketcher.Constraint("DistanceX", 22, 3, -1, 1, Q("73.2 mm")))
sketch8.addConstraint(Sketcher.Constraint("DistanceY", 22, 3, -1, 1, Q("22.3 mm")))
sketch8.addConstraint(Sketcher.Constraint("DistanceX", 23, 3, -1, 1, Q("28.1 mm")))
sketch8.addConstraint(Sketcher.Constraint("DistanceX", 24, 3, -1, 1, Q("8.2 mm")))
sketch8.addConstraint(Sketcher.Constraint("DistanceY", 24, 3, -1, 1, Q("8.3 mm")))
sketch8.addConstraint(Sketcher.Constraint("DistanceX", -1, 1, 25, 3, Q("74.1 mm")))
sketch8.addConstraint(Sketcher.Constraint("DistanceY", 25, 3, -1, 1, Q("1.7 mm")))
sketch8.addConstraint(Sketcher.Constraint("DistanceY", -1, 1, 26, 3, Q("0.1 mm")))
sketch8.addConstraint(Sketcher.Constraint("DistanceX", 27, 3, -1, 1, Q("18.7 mm")))
sketch8.addConstraint(Sketcher.Constraint("Radius", 4, Q("74.841085 mm")))
sketch8.addConstraint(Sketcher.Constraint("Radius", 17, Q("79.407787 mm")))
sketch8.addConstraint(Sketcher.Constraint("DistanceX", 18, 2, 18, 1, Q("94.376558 mm")))
sketch8.addConstraint(Sketcher.Constraint("DistanceY", 15, 3, 17, 3, Q("6.6768 mm")))
sketch8.setExpression("Constraints[53]", "Params.sketch8_diameter")
sketch8.setExpression("Constraints[54]", "Params.sketch8_radius")
pocket7 = body.newObject("PartDesign::Pocket", "Pocket006")
pocket7.Profile = sketch8
pocket7.setExpression("Length", "Params.pocket7_length")

sketch9 = body.newObject("Sketcher::SketchObject", "Sketch008")
sketch9.AttachmentSupport = (doc.getObject("XZ_Plane"), [""])
sketch9.MapMode = "FlatFace"
sketch9.addGeometry(Part.ArcOfCircle(Part.Circle(App.Vector(-100, 20, 0), App.Vector(0, 0, 1), 19), math.radians(45), math.radians(278)), False)
sketch9.addGeometry(Part.LineSegment(App.Vector(-86.6, 33.5, 0), App.Vector(88.5, 33.5, 0)), False)
sketch9.addGeometry(Part.ArcOfCircle(Part.Circle(App.Vector(18.1, -3.2, 0), App.Vector(0, 0, 1), 79.4), math.radians(27.54), math.radians(35.15)), False)
sketch9.addGeometry(Part.LineSegment(App.Vector(83, 42.5, 0), App.Vector(-119.8, 42.5, 0)), False)
sketch9.addGeometry(Part.ArcOfCircle(Part.Circle(App.Vector(-22.7, 3, 0), App.Vector(0, 0, 1), 104.8), math.radians(158), math.radians(206)), False)
sketch9.addGeometry(Part.LineSegment(App.Vector(-117.1, -42.5, 0), App.Vector(87.1, -42.5, 0)), False)
sketch9.addGeometry(Part.ArcOfCircle(Part.Circle(App.Vector(18.1, -3.2, 0), App.Vector(0, 0, 1), 79.4), math.radians(-29.65), math.radians(-22.42)), False)
sketch9.addGeometry(Part.LineSegment(App.Vector(91.5, -33.5, 0), App.Vector(-86.6, -33.5, 0)), False)
sketch9.addGeometry(Part.ArcOfCircle(Part.Circle(App.Vector(-100, -20, 0), App.Vector(0, 0, 1), 19), math.radians(82), math.radians(315)), False)
sketch9.addGeometry(Part.ArcOfCircle(Part.Circle(App.Vector(-22.7, 3, 0), App.Vector(0, 0, 1), 74.8), math.radians(-178.6), math.radians(-176.8)), False)
sketch9.addConstraint(Sketcher.Constraint("Coincident", 0, 1, 1, 1))
sketch9.addConstraint(Sketcher.Constraint("Coincident", 1, 2, 2, 1))
sketch9.addConstraint(Sketcher.Constraint("Coincident", 2, 2, 3, 1))
sketch9.addConstraint(Sketcher.Constraint("Coincident", 3, 2, 4, 1))
sketch9.addConstraint(Sketcher.Constraint("Coincident", 4, 2, 5, 1))
sketch9.addConstraint(Sketcher.Constraint("Coincident", 5, 2, 6, 1))
sketch9.addConstraint(Sketcher.Constraint("Coincident", 6, 2, 7, 1))
sketch9.addConstraint(Sketcher.Constraint("Coincident", 7, 2, 8, 2))
sketch9.addConstraint(Sketcher.Constraint("Coincident", 8, 1, 9, 2))
sketch9.addConstraint(Sketcher.Constraint("Coincident", 9, 1, 0, 2))
sketch9.addConstraint(Sketcher.Constraint("Horizontal", 1))
sketch9.addConstraint(Sketcher.Constraint("Horizontal", 3))
sketch9.addConstraint(Sketcher.Constraint("Horizontal", 5))
sketch9.addConstraint(Sketcher.Constraint("Horizontal", 7))
sketch9.addConstraint(Sketcher.Constraint("Coincident", 6, 3, 2, 3))
sketch9.addConstraint(Sketcher.Constraint("Coincident", 9, 3, 4, 3))
sketch9.addConstraint(Sketcher.Constraint("Equal", 2, 6))
sketch9.addConstraint(Sketcher.Constraint("Equal", 0, 8))
sketch9.addConstraint(Sketcher.Constraint("Symmetric", 0, 3, 8, 3, -1))
sketch9.addConstraint(Sketcher.Constraint("Vertical", 0, 1, 7, 2))
sketch9.addConstraint(Sketcher.Constraint("Radius", 0, Q("19 mm")))
sketch9.addConstraint(Sketcher.Constraint("DistanceX", 0, 3, -1, 1, Q("100 mm")))
sketch9.addConstraint(Sketcher.Constraint("DistanceY", -1, 1, 0, 3, Q("20 mm")))
sketch9.addConstraint(Sketcher.Constraint("DistanceY", 1, 2, 2, 2, Q("9 mm")))
sketch9.addConstraint(Sketcher.Constraint("DistanceY", 4, 2, 0, 1, Q("76 mm")))
sketch9.addConstraint(Sketcher.Constraint("DistanceY", 5, 2, 6, 2, Q("9 mm")))
sketch9.addConstraint(Sketcher.Constraint("DistanceX", 1, 2, 6, 2, Q("3 mm")))
sketch9.addConstraint(Sketcher.Constraint("DistanceX", -1, 1, 1, 2, Q("88.5 mm")))
sketch9.addConstraint(Sketcher.Constraint("Radius", 9, Q("74.841081 mm")))
sketch9.addConstraint(Sketcher.Constraint("Radius", 2, Q("79.407787 mm")))
sketch9.addConstraint(Sketcher.Constraint("Radius", 4, Q("104.841085 mm")))
sketch9.addConstraint(Sketcher.Constraint("DistanceX", 3, 2, 3, 1, Q("202.788994 mm")))
sketch9.addConstraint(Sketcher.Constraint("DistanceX", 5, 1, 5, 2, Q("204.219753 mm")))
sketch9.setExpression("Constraints[20]", "Params.sketch9_radius")
pad2 = body.newObject("PartDesign::Pad", "Pad001")
pad2.Profile = sketch9
pad2.setExpression("Length", "Params.pad2_length")
pad2.Reversed = True

sketch10 = body.newObject("Sketcher::SketchObject", "Sketch009")
sketch10.AttachmentSupport = (doc.getObject("XZ_Plane"), [""])
sketch10.MapMode = "FlatFace"
sketch10.AttachmentOffset = App.Placement(App.Vector(0, 0, -25), App.Rotation())
sketch10.addGeometry(Part.ArcOfCircle(Part.Circle(App.Vector(18, -3, 0), App.Vector(0, 0, 1), 79), math.radians(27.54), math.radians(35.15)), False)
sketch10.addGeometry(Part.LineSegment(App.Vector(88, 34, 0), App.Vector(-91, 34, 0)), False)
sketch10.addGeometry(Part.ArcOfCircle(Part.Circle(App.Vector(-23, 3, 0), App.Vector(0, 0, 1), 75), math.radians(156), math.radians(209)), False)
sketch10.addGeometry(Part.LineSegment(App.Vector(-88, -34, 0), App.Vector(92, -34, 0)), False)
sketch10.addGeometry(Part.ArcOfCircle(Part.Circle(App.Vector(18, -3, 0), App.Vector(0, 0, 1), 79), math.radians(-29.65), math.radians(-22.42)), False)
sketch10.addGeometry(Part.LineSegment(App.Vector(87, -42, 0), App.Vector(-117, -42, 0)), False)
sketch10.addGeometry(Part.ArcOfCircle(Part.Circle(App.Vector(-23, 3, 0), App.Vector(0, 0, 1), 105), math.radians(158), math.radians(206)), False)
sketch10.addGeometry(Part.LineSegment(App.Vector(-120, 42, 0), App.Vector(83, 42, 0)), False)
sketch10.addConstraint(Sketcher.Constraint("Coincident", 0, 1, 1, 1))
sketch10.addConstraint(Sketcher.Constraint("Coincident", 1, 2, 2, 1))
sketch10.addConstraint(Sketcher.Constraint("Coincident", 2, 2, 3, 1))
sketch10.addConstraint(Sketcher.Constraint("Coincident", 3, 2, 4, 2))
sketch10.addConstraint(Sketcher.Constraint("Coincident", 4, 1, 5, 1))
sketch10.addConstraint(Sketcher.Constraint("Coincident", 5, 2, 6, 2))
sketch10.addConstraint(Sketcher.Constraint("Coincident", 6, 1, 7, 1))
sketch10.addConstraint(Sketcher.Constraint("Coincident", 7, 2, 0, 2))
sketch10.addConstraint(Sketcher.Constraint("Horizontal", 1))
sketch10.addConstraint(Sketcher.Constraint("Horizontal", 3))
sketch10.addConstraint(Sketcher.Constraint("Horizontal", 5))
sketch10.addConstraint(Sketcher.Constraint("Horizontal", 7))
sketch10.addConstraint(Sketcher.Constraint("Coincident", 4, 3, 0, 3))
sketch10.addConstraint(Sketcher.Constraint("Coincident", 6, 3, 2, 3))
sketch10.addConstraint(Sketcher.Constraint("Equal", 0, 4))
sketch10.addConstraint(Sketcher.Constraint("Equal", 1, 3))
sketch10.addConstraint(Sketcher.Constraint("DistanceX", 1, 2, 1, 1, Q("179.5 mm")))
sketch10.addConstraint(Sketcher.Constraint("DistanceX", 1, 2, -1, 1, Q("91 mm")))
sketch10.addConstraint(Sketcher.Constraint("DistanceX", 2, 2, -1, 1, Q("88 mm")))
sketch10.addConstraint(Sketcher.Constraint("DistanceY", 2, 2, 1, 2, Q("67 mm")))
sketch10.addConstraint(Sketcher.Constraint("DistanceY", 4, 1, 3, 2, Q("9 mm")))
sketch10.addConstraint(Sketcher.Constraint("DistanceY", 1, 2, 6, 1, Q("9 mm")))
sketch10.addConstraint(Sketcher.Constraint("DistanceY", -1, 1, 0, 1, Q("33.5 mm")))
sketch10.addConstraint(Sketcher.Constraint("Radius", 0, Q("79.407787 mm")))
sketch10.addConstraint(Sketcher.Constraint("Radius", 2, Q("74.841085 mm")))
sketch10.addConstraint(Sketcher.Constraint("Radius", 6, Q("104.841085 mm")))
sketch10.setExpression("Constraints[16]", "Params.sketch10_width")
pad3 = body.newObject("PartDesign::Pad", "Pad002")
pad3.Profile = sketch10
pad3.setExpression("Length", "Params.pad3_length")
pad3.Reversed = True

doc.recompute()
